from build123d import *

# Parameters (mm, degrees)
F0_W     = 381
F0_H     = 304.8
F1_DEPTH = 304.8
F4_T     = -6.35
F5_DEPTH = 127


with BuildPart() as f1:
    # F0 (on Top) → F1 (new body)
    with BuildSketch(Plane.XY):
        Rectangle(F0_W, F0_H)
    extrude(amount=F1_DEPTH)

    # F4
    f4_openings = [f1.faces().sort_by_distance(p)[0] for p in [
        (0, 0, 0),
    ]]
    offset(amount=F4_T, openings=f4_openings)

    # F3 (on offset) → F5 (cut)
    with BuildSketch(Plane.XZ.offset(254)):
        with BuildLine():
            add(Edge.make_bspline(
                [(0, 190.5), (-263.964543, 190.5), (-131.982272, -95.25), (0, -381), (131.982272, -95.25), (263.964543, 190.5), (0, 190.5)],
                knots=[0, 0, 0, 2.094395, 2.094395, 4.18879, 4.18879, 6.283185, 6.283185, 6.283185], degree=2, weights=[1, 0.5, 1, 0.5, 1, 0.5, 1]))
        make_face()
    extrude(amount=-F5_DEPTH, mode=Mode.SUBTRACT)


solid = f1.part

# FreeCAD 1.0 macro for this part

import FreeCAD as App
import Part
import Sketcher
from FreeCAD import Vector
Q = App.Units.Quantity


def faces_at(feature, points):
    """Names of the faces that lie closest to the given points."""
    faces = feature.Shape.Faces
    near = lambda p: min(range(len(faces)), key=lambda i: faces[i].distToShape(Part.Vertex(*p))[0])
    return sorted({f"Face{near(p) + 1}" for p in points})


def add_polygon(sketch, points):
    """Adds a closed chain of lines whose ends are joined by coincident constraints."""
    first, n = sketch.GeometryCount, len(points)
    for a, b in zip(points, points[1:] + points[:1]):
        sketch.addGeometry(Part.LineSegment(App.Vector(*a, 0), App.Vector(*b, 0)), False)
    for i in range(n):
        sketch.addConstraint(Sketcher.Constraint("Coincident", first + i, 2, first + (i + 1) % n, 1))

doc = App.newDocument("Part")
body = doc.addObject("PartDesign::Body", "Body")

sketch1 = body.newObject("Sketcher::SketchObject", "Sketch")
sketch1.AttachmentSupport = (doc.getObject("XY_Plane"), [""])
sketch1.MapMode = "FlatFace"
add_polygon(sketch1, [(-190.5, 152.4), (-190.5, -152.4), (190.5, -152.4), (190.5, 152.4)])
sketch1.addConstraint(Sketcher.Constraint("Vertical", 0))
sketch1.addConstraint(Sketcher.Constraint("Horizontal", 1))
sketch1.addConstraint(Sketcher.Constraint("Vertical", 2))
sketch1.addConstraint(Sketcher.Constraint("Horizontal", 3))
sketch1.addConstraint(Sketcher.Constraint("Symmetric", 0, 2, 2, 2, -1, 1))
sketch1.addConstraint(Sketcher.Constraint("DistanceX", 1, 1, 1, 2, Q("15 in")))
sketch1.addConstraint(Sketcher.Constraint("DistanceY", 0, 2, 0, 1, Q("12 in")))
pad1 = body.newObject("PartDesign::Pad", "Pad")
pad1.Profile = sketch1
pad1.Length = Q("12 in")
doc.recompute()

thickness = body.newObject("PartDesign::Thickness", "Thickness")
thickness.Base = (pad1, faces_at(pad1, [(0, 0, 0)]))
thickness.Value = Q("0.25 in")
thickness.Reversed = True
thickness.Join = "Arc"

sketch2 = body.newObject("Sketcher::SketchObject", "Sketch001")
sketch2.AttachmentSupport = (doc.getObject("XZ_Plane"), [""])
sketch2.MapMode = "FlatFace"
sketch2.AttachmentOffset = App.Placement(Vector(0, 0, 10 * 25.4), App.Rotation())
sketch2.addGeometry(Part.BSplineCurve([Vector(0, 190.5, 0), Vector(-263.964543, 190.5, 0), Vector(-131.982272, -95.25, 0), Vector(0, -381, 0), Vector(131.982272, -95.25, 0), Vector(263.964543, 190.5, 0), Vector(0, 190.5, 0)], [3, 2, 2, 3], [0, 2.094395, 4.18879, 6.283185], False, 2, [1, 0.5, 1, 0.5, 1, 0.5, 1], False), False)
sketch2.addConstraint(Sketcher.Constraint("Block", 0))
pocket1 = body.newObject("PartDesign::Pocket", "Pocket")
pocket1.Profile = sketch2
pocket1.Length = Q("5 in")

doc.recompute()
